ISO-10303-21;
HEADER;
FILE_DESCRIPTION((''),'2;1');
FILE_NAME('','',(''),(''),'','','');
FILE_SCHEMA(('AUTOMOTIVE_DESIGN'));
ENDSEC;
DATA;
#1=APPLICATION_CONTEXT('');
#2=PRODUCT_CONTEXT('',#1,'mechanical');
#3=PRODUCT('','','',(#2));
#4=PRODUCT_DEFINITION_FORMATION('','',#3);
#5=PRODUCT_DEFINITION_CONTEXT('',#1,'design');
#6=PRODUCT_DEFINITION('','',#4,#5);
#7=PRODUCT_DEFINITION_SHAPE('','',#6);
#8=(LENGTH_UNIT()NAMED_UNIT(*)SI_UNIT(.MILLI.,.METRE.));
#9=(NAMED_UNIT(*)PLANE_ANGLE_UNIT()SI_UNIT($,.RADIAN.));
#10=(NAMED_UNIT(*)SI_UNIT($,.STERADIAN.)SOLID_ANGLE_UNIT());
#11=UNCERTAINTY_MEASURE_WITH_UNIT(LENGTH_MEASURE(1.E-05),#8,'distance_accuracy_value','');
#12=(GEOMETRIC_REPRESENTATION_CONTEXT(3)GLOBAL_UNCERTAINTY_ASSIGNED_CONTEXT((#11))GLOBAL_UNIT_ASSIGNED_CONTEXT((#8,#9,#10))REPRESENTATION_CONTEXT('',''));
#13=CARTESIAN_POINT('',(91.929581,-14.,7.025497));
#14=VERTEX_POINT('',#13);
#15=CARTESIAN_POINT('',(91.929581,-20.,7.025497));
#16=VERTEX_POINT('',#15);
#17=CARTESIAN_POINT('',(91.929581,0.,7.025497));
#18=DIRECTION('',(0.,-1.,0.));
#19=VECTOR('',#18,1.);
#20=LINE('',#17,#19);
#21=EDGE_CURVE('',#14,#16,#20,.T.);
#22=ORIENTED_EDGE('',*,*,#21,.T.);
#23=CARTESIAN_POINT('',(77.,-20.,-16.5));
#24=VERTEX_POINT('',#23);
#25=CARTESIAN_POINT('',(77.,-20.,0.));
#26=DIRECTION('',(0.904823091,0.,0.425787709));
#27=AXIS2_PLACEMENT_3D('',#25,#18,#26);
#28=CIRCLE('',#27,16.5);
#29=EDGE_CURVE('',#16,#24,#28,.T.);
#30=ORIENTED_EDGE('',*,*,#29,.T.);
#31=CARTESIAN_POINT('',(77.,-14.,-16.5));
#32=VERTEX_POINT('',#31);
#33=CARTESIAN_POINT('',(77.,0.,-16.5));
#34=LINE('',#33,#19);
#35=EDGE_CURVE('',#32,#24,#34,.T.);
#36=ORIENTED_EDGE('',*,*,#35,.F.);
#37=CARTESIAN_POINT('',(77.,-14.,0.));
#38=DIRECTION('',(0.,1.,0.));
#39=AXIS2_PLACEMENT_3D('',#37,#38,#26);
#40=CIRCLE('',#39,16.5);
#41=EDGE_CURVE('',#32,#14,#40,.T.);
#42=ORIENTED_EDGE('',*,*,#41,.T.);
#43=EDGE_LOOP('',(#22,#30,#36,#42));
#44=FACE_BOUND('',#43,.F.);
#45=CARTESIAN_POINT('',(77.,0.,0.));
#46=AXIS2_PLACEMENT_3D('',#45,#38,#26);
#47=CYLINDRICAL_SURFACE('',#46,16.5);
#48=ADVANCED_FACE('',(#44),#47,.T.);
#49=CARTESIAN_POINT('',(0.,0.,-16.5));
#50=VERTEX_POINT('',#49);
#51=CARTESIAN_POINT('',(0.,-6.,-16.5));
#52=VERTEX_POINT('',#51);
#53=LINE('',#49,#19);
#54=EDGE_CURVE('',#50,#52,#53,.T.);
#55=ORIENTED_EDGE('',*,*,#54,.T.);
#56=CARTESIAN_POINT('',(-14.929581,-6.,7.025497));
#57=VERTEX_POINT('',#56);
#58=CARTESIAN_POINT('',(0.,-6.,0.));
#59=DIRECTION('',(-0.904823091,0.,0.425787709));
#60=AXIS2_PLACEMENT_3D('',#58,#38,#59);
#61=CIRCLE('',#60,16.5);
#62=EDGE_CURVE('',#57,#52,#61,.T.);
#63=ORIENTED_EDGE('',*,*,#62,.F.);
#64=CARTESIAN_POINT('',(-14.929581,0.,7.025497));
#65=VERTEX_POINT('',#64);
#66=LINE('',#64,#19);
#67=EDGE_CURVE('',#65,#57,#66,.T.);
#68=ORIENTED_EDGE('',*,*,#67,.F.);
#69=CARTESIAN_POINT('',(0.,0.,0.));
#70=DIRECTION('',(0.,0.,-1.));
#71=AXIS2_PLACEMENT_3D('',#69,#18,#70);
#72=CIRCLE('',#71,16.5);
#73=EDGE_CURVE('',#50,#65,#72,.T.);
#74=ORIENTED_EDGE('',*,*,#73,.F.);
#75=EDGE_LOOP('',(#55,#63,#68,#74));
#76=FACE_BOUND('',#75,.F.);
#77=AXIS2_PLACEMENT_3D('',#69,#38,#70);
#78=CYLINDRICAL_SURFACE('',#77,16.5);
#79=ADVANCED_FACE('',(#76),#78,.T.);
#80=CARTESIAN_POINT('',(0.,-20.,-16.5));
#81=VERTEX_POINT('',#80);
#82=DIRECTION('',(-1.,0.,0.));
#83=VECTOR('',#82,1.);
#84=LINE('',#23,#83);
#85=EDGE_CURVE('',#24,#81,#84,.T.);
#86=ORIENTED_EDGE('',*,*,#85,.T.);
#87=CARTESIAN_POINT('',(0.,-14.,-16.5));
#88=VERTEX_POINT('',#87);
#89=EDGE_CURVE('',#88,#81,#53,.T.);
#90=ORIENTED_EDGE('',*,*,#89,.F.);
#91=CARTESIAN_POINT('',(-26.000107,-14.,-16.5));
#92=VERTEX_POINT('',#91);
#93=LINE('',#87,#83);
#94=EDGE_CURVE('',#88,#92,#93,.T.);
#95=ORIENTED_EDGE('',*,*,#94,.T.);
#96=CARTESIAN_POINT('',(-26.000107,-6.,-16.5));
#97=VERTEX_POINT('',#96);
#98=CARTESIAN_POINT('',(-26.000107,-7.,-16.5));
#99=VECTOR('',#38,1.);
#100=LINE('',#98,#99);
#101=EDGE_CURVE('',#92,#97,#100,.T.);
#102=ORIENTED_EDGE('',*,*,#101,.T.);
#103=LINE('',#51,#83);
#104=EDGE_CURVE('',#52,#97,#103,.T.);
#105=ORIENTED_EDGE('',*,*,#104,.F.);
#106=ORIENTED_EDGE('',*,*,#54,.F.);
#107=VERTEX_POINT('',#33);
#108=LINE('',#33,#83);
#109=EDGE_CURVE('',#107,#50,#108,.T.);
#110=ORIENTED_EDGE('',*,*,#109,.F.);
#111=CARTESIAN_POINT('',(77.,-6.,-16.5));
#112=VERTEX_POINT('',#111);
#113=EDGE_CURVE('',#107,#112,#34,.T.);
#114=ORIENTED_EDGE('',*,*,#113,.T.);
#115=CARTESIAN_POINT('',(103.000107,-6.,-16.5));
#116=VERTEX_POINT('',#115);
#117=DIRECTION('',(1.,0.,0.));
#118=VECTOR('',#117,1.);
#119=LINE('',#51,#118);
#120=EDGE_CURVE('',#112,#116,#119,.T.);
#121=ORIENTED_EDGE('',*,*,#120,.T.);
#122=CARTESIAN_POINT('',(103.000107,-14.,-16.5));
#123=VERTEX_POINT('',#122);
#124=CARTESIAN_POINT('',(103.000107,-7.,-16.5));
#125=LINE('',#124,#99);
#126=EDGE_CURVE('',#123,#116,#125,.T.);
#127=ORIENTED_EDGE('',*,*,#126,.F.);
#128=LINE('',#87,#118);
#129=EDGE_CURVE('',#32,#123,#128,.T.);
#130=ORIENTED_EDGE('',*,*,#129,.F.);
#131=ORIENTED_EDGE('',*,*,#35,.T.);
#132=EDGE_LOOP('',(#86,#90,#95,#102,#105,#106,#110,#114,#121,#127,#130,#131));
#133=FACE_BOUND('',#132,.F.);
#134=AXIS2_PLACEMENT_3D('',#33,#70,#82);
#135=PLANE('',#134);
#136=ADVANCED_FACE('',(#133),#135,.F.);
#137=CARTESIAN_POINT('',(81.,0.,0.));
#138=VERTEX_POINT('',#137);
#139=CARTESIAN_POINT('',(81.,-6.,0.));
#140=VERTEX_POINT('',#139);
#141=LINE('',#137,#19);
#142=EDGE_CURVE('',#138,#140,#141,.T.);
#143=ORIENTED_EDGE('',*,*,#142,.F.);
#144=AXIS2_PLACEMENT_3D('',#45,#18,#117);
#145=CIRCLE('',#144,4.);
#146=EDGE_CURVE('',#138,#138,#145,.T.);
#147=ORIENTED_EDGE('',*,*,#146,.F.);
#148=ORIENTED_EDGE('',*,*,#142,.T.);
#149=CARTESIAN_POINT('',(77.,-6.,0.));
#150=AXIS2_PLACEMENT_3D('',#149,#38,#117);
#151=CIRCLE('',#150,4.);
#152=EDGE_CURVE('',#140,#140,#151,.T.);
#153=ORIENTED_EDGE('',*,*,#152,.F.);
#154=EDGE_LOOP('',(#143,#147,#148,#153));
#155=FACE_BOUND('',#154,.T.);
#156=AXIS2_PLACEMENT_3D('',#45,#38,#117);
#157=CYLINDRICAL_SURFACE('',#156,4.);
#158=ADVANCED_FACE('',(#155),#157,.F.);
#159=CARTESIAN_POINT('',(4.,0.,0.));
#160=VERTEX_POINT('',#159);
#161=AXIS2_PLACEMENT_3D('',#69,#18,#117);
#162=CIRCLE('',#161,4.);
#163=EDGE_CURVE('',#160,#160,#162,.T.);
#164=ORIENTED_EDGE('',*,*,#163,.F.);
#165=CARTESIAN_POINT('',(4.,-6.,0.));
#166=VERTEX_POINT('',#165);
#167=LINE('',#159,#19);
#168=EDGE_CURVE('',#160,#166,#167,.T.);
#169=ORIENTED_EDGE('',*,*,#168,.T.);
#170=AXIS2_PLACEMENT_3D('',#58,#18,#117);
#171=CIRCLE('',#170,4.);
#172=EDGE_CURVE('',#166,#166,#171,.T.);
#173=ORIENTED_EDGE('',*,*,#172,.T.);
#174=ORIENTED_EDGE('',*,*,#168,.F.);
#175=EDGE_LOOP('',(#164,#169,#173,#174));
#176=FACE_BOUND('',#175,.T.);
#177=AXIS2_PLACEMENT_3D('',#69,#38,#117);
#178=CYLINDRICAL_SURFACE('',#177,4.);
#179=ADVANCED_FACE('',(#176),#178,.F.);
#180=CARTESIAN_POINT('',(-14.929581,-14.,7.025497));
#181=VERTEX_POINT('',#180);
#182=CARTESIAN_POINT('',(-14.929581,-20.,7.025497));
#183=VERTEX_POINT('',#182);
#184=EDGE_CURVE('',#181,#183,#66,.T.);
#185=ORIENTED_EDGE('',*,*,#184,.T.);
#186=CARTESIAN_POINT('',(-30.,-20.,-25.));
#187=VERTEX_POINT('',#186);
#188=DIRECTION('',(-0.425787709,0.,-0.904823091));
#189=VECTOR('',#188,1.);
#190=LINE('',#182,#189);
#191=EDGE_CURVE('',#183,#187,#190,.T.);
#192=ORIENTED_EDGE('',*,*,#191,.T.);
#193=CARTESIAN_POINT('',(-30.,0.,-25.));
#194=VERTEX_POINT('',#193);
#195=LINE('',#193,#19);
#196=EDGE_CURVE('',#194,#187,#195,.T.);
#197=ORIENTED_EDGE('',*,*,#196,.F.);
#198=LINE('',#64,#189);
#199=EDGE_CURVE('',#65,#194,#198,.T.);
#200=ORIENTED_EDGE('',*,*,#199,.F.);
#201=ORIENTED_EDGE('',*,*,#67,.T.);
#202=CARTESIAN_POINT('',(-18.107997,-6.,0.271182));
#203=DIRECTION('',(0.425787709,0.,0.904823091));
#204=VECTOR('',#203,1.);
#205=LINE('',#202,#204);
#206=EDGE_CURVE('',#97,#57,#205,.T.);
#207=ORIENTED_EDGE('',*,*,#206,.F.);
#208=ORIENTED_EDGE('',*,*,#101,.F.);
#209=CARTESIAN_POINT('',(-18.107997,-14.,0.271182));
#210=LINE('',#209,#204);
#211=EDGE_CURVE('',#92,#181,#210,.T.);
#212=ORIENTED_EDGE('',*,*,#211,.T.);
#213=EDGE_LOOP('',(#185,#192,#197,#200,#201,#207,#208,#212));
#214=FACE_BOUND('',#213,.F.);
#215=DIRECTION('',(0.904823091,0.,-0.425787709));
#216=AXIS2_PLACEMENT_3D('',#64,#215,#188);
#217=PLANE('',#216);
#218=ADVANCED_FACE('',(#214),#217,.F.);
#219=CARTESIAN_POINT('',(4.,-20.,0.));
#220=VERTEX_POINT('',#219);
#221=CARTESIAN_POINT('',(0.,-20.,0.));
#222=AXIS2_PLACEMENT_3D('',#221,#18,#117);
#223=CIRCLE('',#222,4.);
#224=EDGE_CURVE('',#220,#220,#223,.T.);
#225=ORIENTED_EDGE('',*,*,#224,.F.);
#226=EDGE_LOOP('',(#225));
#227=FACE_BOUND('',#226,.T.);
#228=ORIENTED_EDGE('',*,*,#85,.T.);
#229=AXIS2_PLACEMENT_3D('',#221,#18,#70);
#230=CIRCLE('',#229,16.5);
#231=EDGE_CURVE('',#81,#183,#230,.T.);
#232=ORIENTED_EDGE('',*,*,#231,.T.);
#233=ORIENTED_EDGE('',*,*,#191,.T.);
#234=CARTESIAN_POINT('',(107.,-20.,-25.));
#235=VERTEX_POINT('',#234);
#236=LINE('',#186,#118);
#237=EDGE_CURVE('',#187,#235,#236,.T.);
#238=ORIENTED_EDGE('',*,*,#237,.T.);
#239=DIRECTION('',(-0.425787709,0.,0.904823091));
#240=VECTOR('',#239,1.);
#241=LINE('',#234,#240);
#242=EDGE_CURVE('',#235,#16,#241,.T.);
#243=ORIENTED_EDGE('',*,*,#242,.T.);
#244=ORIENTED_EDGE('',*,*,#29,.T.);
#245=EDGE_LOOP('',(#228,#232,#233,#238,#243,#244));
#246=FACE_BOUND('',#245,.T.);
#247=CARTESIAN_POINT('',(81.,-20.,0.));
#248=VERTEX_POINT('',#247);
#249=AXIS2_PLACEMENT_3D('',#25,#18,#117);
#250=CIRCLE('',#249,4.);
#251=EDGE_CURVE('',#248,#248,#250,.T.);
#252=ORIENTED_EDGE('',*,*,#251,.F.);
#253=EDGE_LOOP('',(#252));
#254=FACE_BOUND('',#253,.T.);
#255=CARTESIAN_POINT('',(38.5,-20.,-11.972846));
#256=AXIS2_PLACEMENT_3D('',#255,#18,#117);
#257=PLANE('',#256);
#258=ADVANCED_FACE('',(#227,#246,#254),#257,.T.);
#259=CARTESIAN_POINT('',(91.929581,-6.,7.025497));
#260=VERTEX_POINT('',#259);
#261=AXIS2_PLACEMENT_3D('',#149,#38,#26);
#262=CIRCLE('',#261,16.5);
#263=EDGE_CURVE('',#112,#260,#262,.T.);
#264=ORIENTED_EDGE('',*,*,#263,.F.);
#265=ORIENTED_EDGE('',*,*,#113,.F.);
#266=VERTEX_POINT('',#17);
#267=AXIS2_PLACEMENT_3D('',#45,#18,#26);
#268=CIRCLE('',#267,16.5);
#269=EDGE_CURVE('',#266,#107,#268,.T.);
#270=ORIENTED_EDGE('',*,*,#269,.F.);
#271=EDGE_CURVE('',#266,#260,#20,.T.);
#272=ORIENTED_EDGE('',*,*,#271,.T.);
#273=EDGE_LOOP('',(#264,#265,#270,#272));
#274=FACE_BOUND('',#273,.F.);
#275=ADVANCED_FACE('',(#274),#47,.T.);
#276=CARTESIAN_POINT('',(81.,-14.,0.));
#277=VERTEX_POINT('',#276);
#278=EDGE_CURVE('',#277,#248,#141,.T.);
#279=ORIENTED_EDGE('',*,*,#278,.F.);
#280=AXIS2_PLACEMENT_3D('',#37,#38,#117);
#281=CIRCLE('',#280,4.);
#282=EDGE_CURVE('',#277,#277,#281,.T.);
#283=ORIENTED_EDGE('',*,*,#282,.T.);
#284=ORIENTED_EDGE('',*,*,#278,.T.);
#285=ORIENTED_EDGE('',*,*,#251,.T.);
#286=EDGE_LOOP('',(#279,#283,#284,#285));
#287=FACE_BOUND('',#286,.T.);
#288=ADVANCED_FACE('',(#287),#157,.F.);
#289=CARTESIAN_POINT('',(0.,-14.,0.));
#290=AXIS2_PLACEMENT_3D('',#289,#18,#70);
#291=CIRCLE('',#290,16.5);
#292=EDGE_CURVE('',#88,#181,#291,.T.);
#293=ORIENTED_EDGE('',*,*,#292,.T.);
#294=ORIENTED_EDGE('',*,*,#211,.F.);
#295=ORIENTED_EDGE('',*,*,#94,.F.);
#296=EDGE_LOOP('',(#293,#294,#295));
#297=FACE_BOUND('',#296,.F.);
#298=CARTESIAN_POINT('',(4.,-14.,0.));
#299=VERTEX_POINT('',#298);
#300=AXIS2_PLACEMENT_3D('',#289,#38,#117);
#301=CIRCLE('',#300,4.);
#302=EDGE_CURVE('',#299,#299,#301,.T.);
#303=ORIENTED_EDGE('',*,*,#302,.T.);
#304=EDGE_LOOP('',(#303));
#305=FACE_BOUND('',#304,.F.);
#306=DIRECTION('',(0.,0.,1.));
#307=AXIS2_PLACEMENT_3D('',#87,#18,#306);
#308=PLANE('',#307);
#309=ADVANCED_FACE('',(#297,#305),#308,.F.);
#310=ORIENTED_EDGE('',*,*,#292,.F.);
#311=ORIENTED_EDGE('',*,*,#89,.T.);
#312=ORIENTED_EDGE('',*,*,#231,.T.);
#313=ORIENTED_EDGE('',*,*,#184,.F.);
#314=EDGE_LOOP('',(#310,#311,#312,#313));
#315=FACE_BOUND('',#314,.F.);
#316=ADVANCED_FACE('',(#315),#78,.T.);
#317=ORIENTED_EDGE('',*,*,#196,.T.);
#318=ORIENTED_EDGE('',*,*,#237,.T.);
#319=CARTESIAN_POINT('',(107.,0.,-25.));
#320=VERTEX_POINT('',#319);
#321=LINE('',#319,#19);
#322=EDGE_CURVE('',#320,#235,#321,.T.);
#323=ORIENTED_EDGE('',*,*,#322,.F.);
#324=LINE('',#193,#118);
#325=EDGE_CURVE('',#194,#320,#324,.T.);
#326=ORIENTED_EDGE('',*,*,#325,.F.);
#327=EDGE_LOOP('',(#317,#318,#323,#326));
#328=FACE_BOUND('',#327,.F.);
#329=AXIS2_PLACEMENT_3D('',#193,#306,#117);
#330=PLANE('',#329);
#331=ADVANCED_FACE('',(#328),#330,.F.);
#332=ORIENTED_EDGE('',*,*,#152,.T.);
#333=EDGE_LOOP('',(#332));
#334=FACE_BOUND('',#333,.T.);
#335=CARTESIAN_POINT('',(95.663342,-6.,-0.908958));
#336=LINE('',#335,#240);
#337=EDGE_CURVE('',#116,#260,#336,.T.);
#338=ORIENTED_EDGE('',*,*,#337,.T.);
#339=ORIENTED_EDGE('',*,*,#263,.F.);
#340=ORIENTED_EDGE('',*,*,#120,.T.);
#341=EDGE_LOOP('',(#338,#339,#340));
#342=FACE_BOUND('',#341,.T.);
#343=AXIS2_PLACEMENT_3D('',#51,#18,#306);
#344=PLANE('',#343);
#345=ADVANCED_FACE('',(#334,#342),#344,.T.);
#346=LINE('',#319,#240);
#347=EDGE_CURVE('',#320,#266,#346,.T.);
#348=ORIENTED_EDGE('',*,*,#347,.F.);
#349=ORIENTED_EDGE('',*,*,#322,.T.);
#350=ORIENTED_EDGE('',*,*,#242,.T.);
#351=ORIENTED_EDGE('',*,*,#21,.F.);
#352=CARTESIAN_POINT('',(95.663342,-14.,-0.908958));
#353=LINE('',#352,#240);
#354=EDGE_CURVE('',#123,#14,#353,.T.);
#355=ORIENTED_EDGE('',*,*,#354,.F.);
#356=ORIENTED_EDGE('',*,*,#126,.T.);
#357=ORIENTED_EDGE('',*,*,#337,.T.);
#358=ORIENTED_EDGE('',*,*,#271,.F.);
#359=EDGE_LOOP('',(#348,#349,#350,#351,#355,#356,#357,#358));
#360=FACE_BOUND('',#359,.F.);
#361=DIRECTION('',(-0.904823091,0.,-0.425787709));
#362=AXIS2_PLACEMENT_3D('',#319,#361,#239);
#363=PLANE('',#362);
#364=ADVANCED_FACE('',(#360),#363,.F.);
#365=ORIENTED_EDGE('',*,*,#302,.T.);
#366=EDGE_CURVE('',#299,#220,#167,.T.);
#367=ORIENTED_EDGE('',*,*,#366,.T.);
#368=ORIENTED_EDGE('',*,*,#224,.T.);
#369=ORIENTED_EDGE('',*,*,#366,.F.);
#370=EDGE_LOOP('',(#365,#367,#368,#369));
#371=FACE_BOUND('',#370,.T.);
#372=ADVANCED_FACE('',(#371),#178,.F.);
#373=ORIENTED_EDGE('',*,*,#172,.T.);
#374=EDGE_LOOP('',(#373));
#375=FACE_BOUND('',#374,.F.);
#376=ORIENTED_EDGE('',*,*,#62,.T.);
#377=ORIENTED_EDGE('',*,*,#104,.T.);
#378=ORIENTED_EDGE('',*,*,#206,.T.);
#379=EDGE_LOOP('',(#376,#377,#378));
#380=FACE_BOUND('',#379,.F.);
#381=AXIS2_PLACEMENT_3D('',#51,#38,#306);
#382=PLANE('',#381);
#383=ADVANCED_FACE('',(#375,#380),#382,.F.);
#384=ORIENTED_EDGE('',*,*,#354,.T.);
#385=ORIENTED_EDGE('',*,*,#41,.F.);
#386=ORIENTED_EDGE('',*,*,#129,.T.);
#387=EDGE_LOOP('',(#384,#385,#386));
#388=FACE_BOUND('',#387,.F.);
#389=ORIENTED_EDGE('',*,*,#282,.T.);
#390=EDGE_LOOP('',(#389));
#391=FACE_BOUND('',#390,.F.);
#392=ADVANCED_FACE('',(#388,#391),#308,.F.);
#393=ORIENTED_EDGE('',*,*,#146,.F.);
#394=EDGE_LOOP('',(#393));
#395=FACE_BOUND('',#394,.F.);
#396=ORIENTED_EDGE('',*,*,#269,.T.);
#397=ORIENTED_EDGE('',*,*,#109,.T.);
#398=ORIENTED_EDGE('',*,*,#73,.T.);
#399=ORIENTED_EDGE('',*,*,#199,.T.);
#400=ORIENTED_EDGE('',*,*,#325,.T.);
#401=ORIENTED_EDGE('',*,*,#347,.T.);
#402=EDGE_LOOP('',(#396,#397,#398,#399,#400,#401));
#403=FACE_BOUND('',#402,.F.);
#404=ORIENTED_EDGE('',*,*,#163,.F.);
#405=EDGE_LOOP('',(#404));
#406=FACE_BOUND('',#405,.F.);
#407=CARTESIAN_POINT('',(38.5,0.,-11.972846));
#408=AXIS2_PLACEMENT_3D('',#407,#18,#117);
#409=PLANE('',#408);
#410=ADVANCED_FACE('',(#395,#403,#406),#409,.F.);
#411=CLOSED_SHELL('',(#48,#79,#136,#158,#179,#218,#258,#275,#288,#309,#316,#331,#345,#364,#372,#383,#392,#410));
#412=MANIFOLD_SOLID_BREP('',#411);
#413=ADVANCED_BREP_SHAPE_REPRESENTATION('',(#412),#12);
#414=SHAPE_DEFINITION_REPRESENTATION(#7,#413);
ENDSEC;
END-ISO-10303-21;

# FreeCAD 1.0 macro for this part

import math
import FreeCAD as App
import Part
import Sketcher

V = App.Vector

doc = App.newDocument("Part")
params = doc.addObject("Spreadsheet::Sheet", "Params")
for row, (alias, value) in enumerate([
    ("sketch1_diameter", "8 mm"),
    ("sketch1_radius", "16.5 mm"),
    ("sketch1_width", "77 mm"),
    ("sketch1_width2", "137 mm"),
    ("pad1_length", "20 mm"),
    ("sketch2_width", "8 mm"),
], start=1):
    params.set(f"A{row}", alias)
    params.set(f"B{row}", "=" + value)
    params.setAlias(f"B{row}", alias)

body = doc.addObject("PartDesign::Body", "Body")

sketch1 = body.newObject("Sketcher::SketchObject", "Sketch")
sketch1.AttachmentSupport = (doc.getObject("XZ_Plane"), [""])
sketch1.MapMode = "FlatFace"
sketch1.addGeometry(Part.LineSegment(V(77, -16.5, 0), V(0, -16.5, 0)), False)
sketch1.addGeometry(Part.ArcOfCircle(Part.Circle(V(0, 0, 0), V(0, 0, 1), 16.5), math.radians(-90), math.radians(155)), False)
sketch1.addGeometry(Part.LineSegment(V(-14.9, 7, 0), V(-30, -25, 0)), False)
sketch1.addGeometry(Part.LineSegment(V(-30, -25, 0), V(107, -25, 0)), False)
sketch1.addGeometry(Part.LineSegment(V(107, -25, 0), V(91.9, 7, 0)), False)
sketch1.addGeometry(Part.ArcOfCircle(Part.Circle(V(77, 0, 0), V(0, 0, 1), 16.5), math.radians(25), math.radians(270)), False)
sketch1.addGeometry(Part.Circle(V(0, 0, 0), V(0, 0, 1), 4), False)
sketch1.addGeometry(Part.Circle(V(77, 0, 0), V(0, 0, 1), 4), False)
sketch1.addConstraint(Sketcher.Constraint("Tangent", 0, 2, 1, 1))
sketch1.addConstraint(Sketcher.Constraint("Tangent", 1, 2, 2, 1))
sketch1.addConstraint(Sketcher.Constraint("Coincident", 2, 2, 3, 1))
sketch1.addConstraint(Sketcher.Constraint("Coincident", 3, 2, 4, 1))
sketch1.addConstraint(Sketcher.Constraint("Tangent", 4, 2, 5, 1))
sketch1.addConstraint(Sketcher.Constraint("Tangent", 5, 2, 0, 1))
sketch1.addConstraint(Sketcher.Constraint("Horizontal", 0))
sketch1.addConstraint(Sketcher.Constraint("Horizontal", 3))
sketch1.addConstraint(Sketcher.Constraint("Coincident", 1, 3, -1, 1))
sketch1.addConstraint(Sketcher.Constraint("Coincident", 6, 3, -1, 1))
sketch1.addConstraint(Sketcher.Constraint("Coincident", 7, 3, 5, 3))
sketch1.addConstraint(Sketcher.Constraint("Equal", 1, 5))
sketch1.addConstraint(Sketcher.Constraint("Equal", 6, 7))
sketch1.addConstraint(Sketcher.Constraint("Horizontal", 1, 2, 4, 2))
sketch1.addConstraint(Sketcher.Constraint("Diameter", 6, 8.0))
sketch1.addConstraint(Sketcher.Constraint("Radius", 1, 16.5))
sketch1.addConstraint(Sketcher.Constraint("DistanceX", 0, 2, 0, 1, 77.0))
sketch1.addConstraint(Sketcher.Constraint("DistanceX", 3, 1, 3, 2, 137.0))
sketch1.addConstraint(Sketcher.Constraint("DistanceY", 2, 2, -1, 1, 25.0))
sketch1.setExpression("Constraints[14]", "Params.sketch1_diameter")
sketch1.setExpression("Constraints[15]", "Params.sketch1_radius")
sketch1.setExpression("Constraints[16]", "Params.sketch1_width")
sketch1.setExpression("Constraints[17]", "Params.sketch1_width2")
pad1 = body.newObject("PartDesign::Pad", "Pad")
pad1.Profile = sketch1
pad1.setExpression("Length", "Params.pad1_length")

sketch2 = body.newObject("Sketcher::SketchObject", "Sketch001")
sketch2.AttachmentSupport = (doc.getObject("YZ_Plane"), [""])
sketch2.MapMode = "FlatFace"
sketch2.addGeometry(Part.LineSegment(V(-14, 44, 0), V(-14, -16, 0)), False)
sketch2.addGeometry(Part.LineSegment(V(-14, -16, 0), V(-6, -16, 0)), False)
sketch2.addGeometry(Part.LineSegment(V(-6, -16, 0), V(-6, 44, 0)), False)
sketch2.addGeometry(Part.LineSegment(V(-6, 44, 0), V(-14, 44, 0)), False)
sketch2.addConstraint(Sketcher.Constraint("Coincident", 0, 2, 1, 1))
sketch2.addConstraint(Sketcher.Constraint("Coincident", 1, 2, 2, 1))
sketch2.addConstraint(Sketcher.Constraint("Coincident", 2, 2, 3, 1))
sketch2.addConstraint(Sketcher.Constraint("Coincident", 3, 2, 0, 1))
sketch2.addConstraint(Sketcher.Constraint("Vertical", 0))
sketch2.addConstraint(Sketcher.Constraint("Horizontal", 1))
sketch2.addConstraint(Sketcher.Constraint("Vertical", 2))
sketch2.addConstraint(Sketcher.Constraint("Horizontal", 3))
sketch2.addConstraint(Sketcher.Constraint("DistanceX", 1, 1, 1, 2, 8.0))
sketch2.addConstraint(Sketcher.Constraint("DistanceX", 0, 2, -1, 1, 14.0))
sketch2.addConstraint(Sketcher.Constraint("DistanceY", 0, 2, -1, 1, 16.5))
sketch2.addConstraint(Sketcher.Constraint("DistanceY", 0, 2, 0, 1, 60.293947))
sketch2.setExpression("Constraints[8]", "Params.sketch2_width")
pocket1 = body.newObject("PartDesign::Pocket", "Pocket")
pocket1.Profile = sketch2
pocket1.Type = "ThroughAll"
pocket1.Midplane = True

doc.recompute()
